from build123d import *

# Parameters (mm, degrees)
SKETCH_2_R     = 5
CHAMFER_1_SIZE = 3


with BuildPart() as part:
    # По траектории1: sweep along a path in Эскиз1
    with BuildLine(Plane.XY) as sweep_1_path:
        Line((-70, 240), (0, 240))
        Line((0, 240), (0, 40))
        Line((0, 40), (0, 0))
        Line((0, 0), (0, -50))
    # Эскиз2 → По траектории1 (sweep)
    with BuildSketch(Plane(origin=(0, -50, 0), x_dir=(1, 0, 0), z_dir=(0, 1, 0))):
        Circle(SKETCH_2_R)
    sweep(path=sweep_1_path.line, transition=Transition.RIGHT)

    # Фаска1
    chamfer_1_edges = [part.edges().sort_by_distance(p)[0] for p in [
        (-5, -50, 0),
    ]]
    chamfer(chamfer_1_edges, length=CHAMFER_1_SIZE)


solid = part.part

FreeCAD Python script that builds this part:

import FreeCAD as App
import Part
import Sketcher
from FreeCAD import Vector
Q = App.Units.Quantity


def edges_at(feature, points):
    """Names of the edges that pass closest to the given points."""
    edges = feature.Shape.Edges
    near = lambda p: min(range(len(edges)), key=lambda i: edges[i].distToShape(Part.Vertex(*p))[0])
    return sorted({f"Edge{near(p) + 1}" for p in points})

doc = App.newDocument("Part")
body = doc.addObject("PartDesign::Body", "Body")

sketch1 = body.newObject("Sketcher::SketchObject", "Sketch")
sketch1.AttachmentSupport = (doc.getObject("XZ_Plane"), [""])
sketch1.MapMode = "FlatFace"
sketch1.AttachmentOffset = App.Placement(Vector(0, 0, 50), App.Rotation())
sketch1.addGeometry(Part.Circle(Vector(0, 0, 0), Vector(0, 0, 1), 5), False)
sketch1.addConstraint([
    Sketcher.Constraint("Coincident", 0, 3, -1, 1),
    Sketcher.Constraint("Diameter", 0, Q("10 mm")),
])

sketch2 = body.newObject("Sketcher::SketchObject", "Sketch001")
sketch2.AttachmentSupport = (doc.getObject("XY_Plane"), [""])
sketch2.MapMode = "FlatFace"
sketch2.addGeometry([
    Part.LineSegment(Vector(-70, 240, 0), Vector(0, 240, 0)),
    Part.LineSegment(Vector(0, 240, 0), Vector(0, -50, 0)),
], False)
sketch2.addConstraint([
    Sketcher.Constraint("Coincident", 0, 2, 1, 1),
    Sketcher.Constraint("Horizontal", 0),
    Sketcher.Constraint("Vertical", 1),
    Sketcher.Constraint("PointOnObject", 0, 2, -2),
    Sketcher.Constraint("DistanceX", 0, 1, 0, 2, Q("70 mm")),
    Sketcher.Constraint("DistanceY", 1, 2, 1, 1, Q("290 mm")),
    Sketcher.Constraint("DistanceY", -1, 1, 0, 1, Q("240 mm")),
])
doc.recompute()

additivepipe = body.newObject("PartDesign::AdditivePipe", "AdditivePipe")
additivepipe.Profile = sketch1
additivepipe.Spine = (sketch2, ["Edge1", "Edge2"])
additivepipe.Transition = "Right corner"
doc.recompute()

chamfer = body.newObject("PartDesign::Chamfer", "Chamfer")
chamfer.Base = (additivepipe, edges_at(additivepipe, [(-5, -50, 0)]))
chamfer.Size = 3

doc.recompute()
